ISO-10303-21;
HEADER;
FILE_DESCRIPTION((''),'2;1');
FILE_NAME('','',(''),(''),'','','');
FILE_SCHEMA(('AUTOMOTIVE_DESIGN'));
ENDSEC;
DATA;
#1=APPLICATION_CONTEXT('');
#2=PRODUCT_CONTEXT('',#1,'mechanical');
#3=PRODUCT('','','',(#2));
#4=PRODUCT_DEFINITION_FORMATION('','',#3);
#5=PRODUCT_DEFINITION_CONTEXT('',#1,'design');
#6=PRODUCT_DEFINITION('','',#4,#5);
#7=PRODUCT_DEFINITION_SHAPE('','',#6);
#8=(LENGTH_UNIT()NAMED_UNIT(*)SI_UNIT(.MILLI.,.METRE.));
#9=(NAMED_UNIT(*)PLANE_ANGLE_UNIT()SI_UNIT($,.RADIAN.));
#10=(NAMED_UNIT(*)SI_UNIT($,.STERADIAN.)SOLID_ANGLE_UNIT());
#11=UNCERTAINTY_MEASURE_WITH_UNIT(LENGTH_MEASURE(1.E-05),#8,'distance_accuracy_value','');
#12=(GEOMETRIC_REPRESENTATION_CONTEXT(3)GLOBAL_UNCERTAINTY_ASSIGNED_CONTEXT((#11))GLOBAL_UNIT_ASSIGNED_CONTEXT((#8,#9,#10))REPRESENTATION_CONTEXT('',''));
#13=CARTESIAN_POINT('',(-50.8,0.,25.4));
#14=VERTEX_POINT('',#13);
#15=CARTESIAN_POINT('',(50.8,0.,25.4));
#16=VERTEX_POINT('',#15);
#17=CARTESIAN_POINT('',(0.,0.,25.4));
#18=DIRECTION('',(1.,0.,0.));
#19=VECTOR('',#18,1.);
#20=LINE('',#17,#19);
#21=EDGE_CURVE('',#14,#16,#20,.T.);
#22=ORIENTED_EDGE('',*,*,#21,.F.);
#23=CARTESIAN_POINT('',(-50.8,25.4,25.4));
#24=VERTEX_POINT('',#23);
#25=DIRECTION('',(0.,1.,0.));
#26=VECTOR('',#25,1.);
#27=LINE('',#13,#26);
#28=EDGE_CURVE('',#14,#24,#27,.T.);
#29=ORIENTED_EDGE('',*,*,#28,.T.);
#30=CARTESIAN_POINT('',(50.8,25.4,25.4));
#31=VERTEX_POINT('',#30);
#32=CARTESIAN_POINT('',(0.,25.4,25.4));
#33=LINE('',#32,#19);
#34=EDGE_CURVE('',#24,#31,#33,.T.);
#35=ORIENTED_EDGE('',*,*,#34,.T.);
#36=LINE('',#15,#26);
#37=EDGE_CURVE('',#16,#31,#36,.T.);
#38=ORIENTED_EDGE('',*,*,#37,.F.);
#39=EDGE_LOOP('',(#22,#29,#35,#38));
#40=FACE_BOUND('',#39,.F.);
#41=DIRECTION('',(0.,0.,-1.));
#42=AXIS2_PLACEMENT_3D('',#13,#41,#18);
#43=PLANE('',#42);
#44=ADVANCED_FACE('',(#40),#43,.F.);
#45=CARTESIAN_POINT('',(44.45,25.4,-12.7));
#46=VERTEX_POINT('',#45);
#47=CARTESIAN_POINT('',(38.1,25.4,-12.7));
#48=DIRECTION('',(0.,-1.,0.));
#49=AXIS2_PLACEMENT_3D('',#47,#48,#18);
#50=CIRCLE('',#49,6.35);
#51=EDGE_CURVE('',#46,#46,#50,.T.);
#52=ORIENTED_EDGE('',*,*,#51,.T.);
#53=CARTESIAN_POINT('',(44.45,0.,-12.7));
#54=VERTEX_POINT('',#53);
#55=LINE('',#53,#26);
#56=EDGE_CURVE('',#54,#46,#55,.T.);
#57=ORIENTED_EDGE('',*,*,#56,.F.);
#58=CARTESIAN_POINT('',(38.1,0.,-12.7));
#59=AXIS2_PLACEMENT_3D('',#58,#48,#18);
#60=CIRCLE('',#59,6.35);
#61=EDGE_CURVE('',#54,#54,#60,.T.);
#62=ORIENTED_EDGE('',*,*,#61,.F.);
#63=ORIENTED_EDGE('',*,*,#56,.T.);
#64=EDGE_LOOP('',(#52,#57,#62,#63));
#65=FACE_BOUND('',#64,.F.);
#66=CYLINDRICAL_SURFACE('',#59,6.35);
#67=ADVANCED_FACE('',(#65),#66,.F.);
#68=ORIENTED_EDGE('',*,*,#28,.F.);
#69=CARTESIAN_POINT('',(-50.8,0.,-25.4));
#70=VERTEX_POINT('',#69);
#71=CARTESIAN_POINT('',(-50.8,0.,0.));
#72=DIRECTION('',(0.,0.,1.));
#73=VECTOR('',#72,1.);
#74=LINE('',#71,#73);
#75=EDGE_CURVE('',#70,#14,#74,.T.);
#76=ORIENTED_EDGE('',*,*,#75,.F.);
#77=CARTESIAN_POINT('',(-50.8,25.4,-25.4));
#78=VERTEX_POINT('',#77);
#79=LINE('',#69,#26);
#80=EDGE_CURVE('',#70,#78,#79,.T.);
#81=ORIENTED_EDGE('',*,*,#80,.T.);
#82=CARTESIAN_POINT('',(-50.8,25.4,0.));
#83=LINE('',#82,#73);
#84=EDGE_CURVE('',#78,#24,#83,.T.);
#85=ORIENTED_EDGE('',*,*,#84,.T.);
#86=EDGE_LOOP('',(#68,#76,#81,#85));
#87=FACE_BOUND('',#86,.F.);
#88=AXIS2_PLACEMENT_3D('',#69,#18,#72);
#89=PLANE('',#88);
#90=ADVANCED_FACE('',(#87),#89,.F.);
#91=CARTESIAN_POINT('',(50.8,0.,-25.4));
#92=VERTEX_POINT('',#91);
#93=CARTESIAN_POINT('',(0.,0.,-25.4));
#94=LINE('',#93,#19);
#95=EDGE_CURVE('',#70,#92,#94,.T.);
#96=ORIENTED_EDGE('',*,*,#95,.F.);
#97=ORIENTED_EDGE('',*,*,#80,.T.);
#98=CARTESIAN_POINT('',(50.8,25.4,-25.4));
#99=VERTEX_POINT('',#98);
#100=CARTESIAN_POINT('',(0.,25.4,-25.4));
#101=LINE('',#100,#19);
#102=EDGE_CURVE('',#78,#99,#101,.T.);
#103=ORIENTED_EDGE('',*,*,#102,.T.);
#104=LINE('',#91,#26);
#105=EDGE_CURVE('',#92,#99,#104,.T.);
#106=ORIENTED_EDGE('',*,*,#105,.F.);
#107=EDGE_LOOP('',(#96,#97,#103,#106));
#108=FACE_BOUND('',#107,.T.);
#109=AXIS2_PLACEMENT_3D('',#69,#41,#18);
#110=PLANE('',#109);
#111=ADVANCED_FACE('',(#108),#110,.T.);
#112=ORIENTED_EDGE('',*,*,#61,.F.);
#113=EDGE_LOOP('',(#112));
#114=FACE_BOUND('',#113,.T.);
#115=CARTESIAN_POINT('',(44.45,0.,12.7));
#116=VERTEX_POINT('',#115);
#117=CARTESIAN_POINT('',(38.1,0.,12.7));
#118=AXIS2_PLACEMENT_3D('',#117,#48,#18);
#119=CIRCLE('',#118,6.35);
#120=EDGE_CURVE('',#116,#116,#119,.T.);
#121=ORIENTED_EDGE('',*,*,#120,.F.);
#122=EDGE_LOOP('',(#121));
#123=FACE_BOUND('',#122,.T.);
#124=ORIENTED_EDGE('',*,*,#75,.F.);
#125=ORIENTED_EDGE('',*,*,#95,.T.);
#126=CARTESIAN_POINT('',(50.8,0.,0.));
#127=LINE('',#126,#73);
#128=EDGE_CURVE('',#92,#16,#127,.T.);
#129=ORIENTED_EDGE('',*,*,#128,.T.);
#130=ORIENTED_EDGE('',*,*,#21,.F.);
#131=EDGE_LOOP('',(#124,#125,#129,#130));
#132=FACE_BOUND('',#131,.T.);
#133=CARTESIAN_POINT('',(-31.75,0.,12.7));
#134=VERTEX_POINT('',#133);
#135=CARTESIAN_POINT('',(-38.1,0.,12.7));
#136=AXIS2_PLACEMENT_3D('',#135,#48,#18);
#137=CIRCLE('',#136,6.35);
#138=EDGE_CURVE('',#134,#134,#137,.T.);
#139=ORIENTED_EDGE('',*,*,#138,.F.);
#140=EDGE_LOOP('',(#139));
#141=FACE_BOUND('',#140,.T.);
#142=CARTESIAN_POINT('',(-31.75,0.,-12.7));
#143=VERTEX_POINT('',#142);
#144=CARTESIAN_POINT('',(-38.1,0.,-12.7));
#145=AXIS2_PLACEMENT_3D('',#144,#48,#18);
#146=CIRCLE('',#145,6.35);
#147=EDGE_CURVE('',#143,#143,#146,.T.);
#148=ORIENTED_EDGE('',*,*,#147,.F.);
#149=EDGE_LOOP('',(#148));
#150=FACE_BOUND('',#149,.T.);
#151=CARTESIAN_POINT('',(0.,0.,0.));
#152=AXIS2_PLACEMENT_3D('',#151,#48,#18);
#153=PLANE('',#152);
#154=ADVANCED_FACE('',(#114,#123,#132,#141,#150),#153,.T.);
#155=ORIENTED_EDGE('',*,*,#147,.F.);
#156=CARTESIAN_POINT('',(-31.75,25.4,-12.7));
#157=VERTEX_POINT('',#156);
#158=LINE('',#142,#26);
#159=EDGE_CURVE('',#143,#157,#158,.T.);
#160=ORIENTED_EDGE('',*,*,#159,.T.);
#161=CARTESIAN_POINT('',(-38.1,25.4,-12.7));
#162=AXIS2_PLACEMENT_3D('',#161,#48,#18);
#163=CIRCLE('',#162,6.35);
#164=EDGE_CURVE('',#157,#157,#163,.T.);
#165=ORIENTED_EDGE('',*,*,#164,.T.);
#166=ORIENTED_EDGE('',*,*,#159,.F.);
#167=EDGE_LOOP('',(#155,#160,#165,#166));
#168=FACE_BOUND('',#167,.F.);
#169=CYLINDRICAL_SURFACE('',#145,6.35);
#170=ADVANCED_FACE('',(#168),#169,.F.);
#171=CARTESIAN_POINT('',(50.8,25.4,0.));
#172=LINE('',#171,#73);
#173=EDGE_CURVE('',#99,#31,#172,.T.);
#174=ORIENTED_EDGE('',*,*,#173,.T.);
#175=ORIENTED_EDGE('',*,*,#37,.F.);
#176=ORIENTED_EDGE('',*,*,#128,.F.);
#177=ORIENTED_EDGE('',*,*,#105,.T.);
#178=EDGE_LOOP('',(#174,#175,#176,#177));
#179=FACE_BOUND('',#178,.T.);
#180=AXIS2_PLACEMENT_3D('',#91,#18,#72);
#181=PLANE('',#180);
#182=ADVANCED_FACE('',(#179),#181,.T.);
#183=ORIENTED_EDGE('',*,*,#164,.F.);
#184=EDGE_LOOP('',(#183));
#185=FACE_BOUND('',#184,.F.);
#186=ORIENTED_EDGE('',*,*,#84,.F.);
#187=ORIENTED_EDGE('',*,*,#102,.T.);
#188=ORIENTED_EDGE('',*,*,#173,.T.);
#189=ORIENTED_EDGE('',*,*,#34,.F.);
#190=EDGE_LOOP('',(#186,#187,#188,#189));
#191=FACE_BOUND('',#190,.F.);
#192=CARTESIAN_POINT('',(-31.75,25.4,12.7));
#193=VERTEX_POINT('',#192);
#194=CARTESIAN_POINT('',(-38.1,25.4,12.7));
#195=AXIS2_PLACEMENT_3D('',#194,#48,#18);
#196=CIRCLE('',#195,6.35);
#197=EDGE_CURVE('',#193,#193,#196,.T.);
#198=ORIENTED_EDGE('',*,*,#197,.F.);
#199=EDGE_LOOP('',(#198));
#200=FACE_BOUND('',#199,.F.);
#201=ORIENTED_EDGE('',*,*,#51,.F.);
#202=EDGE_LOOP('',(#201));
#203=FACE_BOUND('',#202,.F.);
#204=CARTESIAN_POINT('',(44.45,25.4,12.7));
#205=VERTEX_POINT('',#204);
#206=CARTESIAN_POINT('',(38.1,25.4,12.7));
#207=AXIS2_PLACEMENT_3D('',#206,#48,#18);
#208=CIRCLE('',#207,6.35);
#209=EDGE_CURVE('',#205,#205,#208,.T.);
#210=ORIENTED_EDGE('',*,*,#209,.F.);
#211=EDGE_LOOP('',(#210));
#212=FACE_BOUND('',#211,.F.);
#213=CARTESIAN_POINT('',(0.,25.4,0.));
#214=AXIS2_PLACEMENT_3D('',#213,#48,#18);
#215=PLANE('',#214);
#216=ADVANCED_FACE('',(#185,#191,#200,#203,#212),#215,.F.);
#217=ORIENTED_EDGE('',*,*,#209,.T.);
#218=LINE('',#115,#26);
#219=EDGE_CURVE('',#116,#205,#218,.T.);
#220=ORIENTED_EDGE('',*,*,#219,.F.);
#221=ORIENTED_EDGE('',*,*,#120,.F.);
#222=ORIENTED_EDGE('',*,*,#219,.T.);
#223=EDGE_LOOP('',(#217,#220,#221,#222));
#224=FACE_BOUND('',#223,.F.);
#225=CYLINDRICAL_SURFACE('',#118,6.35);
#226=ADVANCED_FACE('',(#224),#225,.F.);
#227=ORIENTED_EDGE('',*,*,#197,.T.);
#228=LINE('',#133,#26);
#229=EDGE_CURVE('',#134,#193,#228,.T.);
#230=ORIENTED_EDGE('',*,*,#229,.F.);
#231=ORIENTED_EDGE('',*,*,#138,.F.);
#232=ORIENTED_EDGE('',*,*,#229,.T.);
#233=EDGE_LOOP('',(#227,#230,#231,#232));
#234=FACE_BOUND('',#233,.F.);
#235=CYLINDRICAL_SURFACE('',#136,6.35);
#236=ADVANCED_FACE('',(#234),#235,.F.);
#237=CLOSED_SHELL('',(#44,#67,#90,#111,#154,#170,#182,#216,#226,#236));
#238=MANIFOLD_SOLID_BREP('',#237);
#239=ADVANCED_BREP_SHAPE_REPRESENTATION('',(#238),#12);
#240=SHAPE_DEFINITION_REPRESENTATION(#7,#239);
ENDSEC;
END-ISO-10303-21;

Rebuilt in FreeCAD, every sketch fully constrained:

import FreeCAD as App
import Part
import Sketcher
Q = App.Units.Quantity

doc = App.newDocument("Part")
body = doc.addObject("PartDesign::Body", "Body")

# Sketch on XZ plane
sketch1 = doc.addObject("Sketcher::SketchObject", "Sketch")
body.addObject(sketch1)
sketch1.AttachmentSupport = (doc.XZ_Plane, [""])
sketch1.MapMode = "FlatFace"
sketch1.addGeometry([
    Part.LineSegment(App.Vector(-51, 25, 0), App.Vector(-51, -25, 0)),
    Part.LineSegment(App.Vector(-51, -25, 0), App.Vector(51, -25, 0)),
    Part.LineSegment(App.Vector(51, -25, 0), App.Vector(51, 25, 0)),
    Part.LineSegment(App.Vector(51, 25, 0), App.Vector(-51, 25, 0)),
], False)
sketch1.addConstraint([
    Sketcher.Constraint("Coincident", 0, 2, 1, 1),
    Sketcher.Constraint("Coincident", 1, 2, 2, 1),
    Sketcher.Constraint("Coincident", 2, 2, 3, 1),
    Sketcher.Constraint("Coincident", 3, 2, 0, 1),
    Sketcher.Constraint("Vertical", 0),
    Sketcher.Constraint("Horizontal", 1),
    Sketcher.Constraint("Vertical", 2),
    Sketcher.Constraint("Horizontal", 3),
    Sketcher.Constraint("Symmetric", 0, 2, 2, 2, -1, 1),
    Sketcher.Constraint("DistanceX", 1, 1, 1, 2, Q("4 in")),
    Sketcher.Constraint("DistanceY", 0, 2, 0, 1, Q("2 in")),
])
pad1 = doc.addObject("PartDesign::Pad", "Pad")
body.addObject(pad1)
pad1.Profile = sketch1
pad1.Length = Q("1 in")
pad1.Reversed = True

# Sketch on XZ plane
sketch2 = doc.addObject("Sketcher::SketchObject", "Sketch001")
body.addObject(sketch2)
sketch2.AttachmentSupport = (doc.XZ_Plane, [""])
sketch2.MapMode = "FlatFace"
sketch2.addGeometry([
    Part.Circle(App.Vector(-38, 13, 0), App.Vector(0, 0, 1), 6),
    Part.Circle(App.Vector(-38, -13, 0), App.Vector(0, 0, 1), 6),
    Part.Circle(App.Vector(38, 13, 0), App.Vector(0, 0, 1), 6),
    Part.Circle(App.Vector(38, -13, 0), App.Vector(0, 0, 1), 6),
], False)
sketch2.addConstraint([
    Sketcher.Constraint("Equal", 0, 1),
    Sketcher.Constraint("Equal", 1, 2),
    Sketcher.Constraint("Equal", 2, 3),
    Sketcher.Constraint("Symmetric", 1, 3, 2, 3, -1, 1),
    Sketcher.Constraint("Symmetric", 0, 3, 3, 3, -1, 1),
    Sketcher.Constraint("Symmetric", 0, 3, 2, 3, -2),
    Sketcher.Constraint("Diameter", 0, Q("0.5 in")),
    Sketcher.Constraint("DistanceY", 1, 3, 0, 3, Q("1 in")),
    Sketcher.Constraint("DistanceX", 0, 3, 2, 3, Q("3 in")),
])
pocket1 = doc.addObject("PartDesign::Pocket", "Pocket")
body.addObject(pocket1)
pocket1.Profile = sketch2
pocket1.Type = "ThroughAll"

# Sketch on XY plane
sketch3 = doc.addObject("Sketcher::SketchObject", "Sketch002")
body.addObject(sketch3)
sketch3.AttachmentSupport = (doc.XY_Plane, [""])
sketch3.MapMode = "FlatFace"
sketch3.addGeometry([
    Part.LineSegment(App.Vector(0, 25, 0), App.Vector(0, 51, 0)),  # 0
    Part.LineSegment(App.Vector(0, 51, 0), App.Vector(-13, 51, 0)),  # 1
    Part.LineSegment(App.Vector(-13, 51, 0), App.Vector(-13, 25, 0)),  # 2
    Part.LineSegment(App.Vector(-13, 25, 0), App.Vector(0, 25, 0)),  # 3
    Part.LineSegment(App.Vector(5, 45, 0), App.Vector(5, 38, 0)),  # 4
    Part.LineSegment(App.Vector(5, 38, 0), App.Vector(13, 38, 0)),  # 5
    Part.LineSegment(App.Vector(13, 38, 0), App.Vector(13, 45, 0)),  # 6
    Part.LineSegment(App.Vector(13, 45, 0), App.Vector(5, 45, 0)),  # 7
], False)
sketch3.addConstraint([
    Sketcher.Constraint("Coincident", 0, 2, 1, 1),
    Sketcher.Constraint("Coincident", 1, 2, 2, 1),
    Sketcher.Constraint("Coincident", 2, 2, 3, 1),
    Sketcher.Constraint("Coincident", 3, 2, 0, 1),
    Sketcher.Constraint("Coincident", 4, 2, 5, 1),
    Sketcher.Constraint("Coincident", 5, 2, 6, 1),
    Sketcher.Constraint("Coincident", 6, 2, 7, 1),
    Sketcher.Constraint("Coincident", 7, 2, 4, 1),
    Sketcher.Constraint("Vertical", 0),
    Sketcher.Constraint("Horizontal", 1),
    Sketcher.Constraint("Vertical", 2),
    Sketcher.Constraint("Horizontal", 3),
    Sketcher.Constraint("Vertical", 4),
    Sketcher.Constraint("Horizontal", 5),
    Sketcher.Constraint("Vertical", 6),
    Sketcher.Constraint("Horizontal", 7),
    Sketcher.Constraint("PointOnObject", 0, 2, -2),
    Sketcher.Constraint("Equal", 7, 4),
    Sketcher.Constraint("DistanceY", 0, 1, 0, 2, Q("1 in")),
    Sketcher.Constraint("DistanceX", 1, 2, 1, 1, Q("0.5 in")),
    Sketcher.Constraint("DistanceX", 5, 1, 5, 2, Q("0.3 in")),
    Sketcher.Constraint("DistanceY", -1, 1, 0, 2, Q("2 in")),
    Sketcher.Constraint("DistanceX", 2, 2, 5, 2, 25.369598),
    Sketcher.Constraint("DistanceY", -1, 1, 6, 2, 45.230042),
])
groove = doc.addObject("PartDesign::Groove", "Groove")
body.addObject(groove)
groove.Profile = sketch3
groove.ReferenceAxis = (sketch3, ["V_Axis"])
groove.Angle = 30
groove.Reversed = True

# Sketch on XY plane
sketch4 = doc.addObject("Sketcher::SketchObject", "Sketch003")
body.addObject(sketch4)
sketch4.AttachmentSupport = (doc.XY_Plane, [""])
sketch4.MapMode = "FlatFace"
sketch4.addGeometry([
    Part.LineSegment(App.Vector(5, 45, 0), App.Vector(5, 38, 0)),
    Part.LineSegment(App.Vector(5, 38, 0), App.Vector(13, 38, 0)),
    Part.LineSegment(App.Vector(13, 38, 0), App.Vector(13, 45, 0)),
    Part.LineSegment(App.Vector(13, 45, 0), App.Vector(5, 45, 0)),
], False)
sketch4.addConstraint([
    Sketcher.Constraint("Coincident", 0, 2, 1, 1),
    Sketcher.Constraint("Coincident", 1, 2, 2, 1),
    Sketcher.Constraint("Coincident", 2, 2, 3, 1),
    Sketcher.Constraint("Coincident", 3, 2, 0, 1),
    Sketcher.Constraint("Vertical", 0),
    Sketcher.Constraint("Horizontal", 1),
    Sketcher.Constraint("Vertical", 2),
    Sketcher.Constraint("Horizontal", 3),
    Sketcher.Constraint("Equal", 3, 0),
    Sketcher.Constraint("DistanceX", 1, 1, 1, 2, Q("0.3 in")),
    Sketcher.Constraint("DistanceY", -1, 1, 2, 2, 45.230042),
    Sketcher.Constraint("DistanceX", -1, 1, 0, 2, 5.049598),
])
groove2 = doc.addObject("PartDesign::Groove", "Groove001")
body.addObject(groove2)
groove2.Profile = sketch4
groove2.ReferenceAxis = (sketch4, ["V_Axis"])
groove2.Angle = 360

doc.recompute()
